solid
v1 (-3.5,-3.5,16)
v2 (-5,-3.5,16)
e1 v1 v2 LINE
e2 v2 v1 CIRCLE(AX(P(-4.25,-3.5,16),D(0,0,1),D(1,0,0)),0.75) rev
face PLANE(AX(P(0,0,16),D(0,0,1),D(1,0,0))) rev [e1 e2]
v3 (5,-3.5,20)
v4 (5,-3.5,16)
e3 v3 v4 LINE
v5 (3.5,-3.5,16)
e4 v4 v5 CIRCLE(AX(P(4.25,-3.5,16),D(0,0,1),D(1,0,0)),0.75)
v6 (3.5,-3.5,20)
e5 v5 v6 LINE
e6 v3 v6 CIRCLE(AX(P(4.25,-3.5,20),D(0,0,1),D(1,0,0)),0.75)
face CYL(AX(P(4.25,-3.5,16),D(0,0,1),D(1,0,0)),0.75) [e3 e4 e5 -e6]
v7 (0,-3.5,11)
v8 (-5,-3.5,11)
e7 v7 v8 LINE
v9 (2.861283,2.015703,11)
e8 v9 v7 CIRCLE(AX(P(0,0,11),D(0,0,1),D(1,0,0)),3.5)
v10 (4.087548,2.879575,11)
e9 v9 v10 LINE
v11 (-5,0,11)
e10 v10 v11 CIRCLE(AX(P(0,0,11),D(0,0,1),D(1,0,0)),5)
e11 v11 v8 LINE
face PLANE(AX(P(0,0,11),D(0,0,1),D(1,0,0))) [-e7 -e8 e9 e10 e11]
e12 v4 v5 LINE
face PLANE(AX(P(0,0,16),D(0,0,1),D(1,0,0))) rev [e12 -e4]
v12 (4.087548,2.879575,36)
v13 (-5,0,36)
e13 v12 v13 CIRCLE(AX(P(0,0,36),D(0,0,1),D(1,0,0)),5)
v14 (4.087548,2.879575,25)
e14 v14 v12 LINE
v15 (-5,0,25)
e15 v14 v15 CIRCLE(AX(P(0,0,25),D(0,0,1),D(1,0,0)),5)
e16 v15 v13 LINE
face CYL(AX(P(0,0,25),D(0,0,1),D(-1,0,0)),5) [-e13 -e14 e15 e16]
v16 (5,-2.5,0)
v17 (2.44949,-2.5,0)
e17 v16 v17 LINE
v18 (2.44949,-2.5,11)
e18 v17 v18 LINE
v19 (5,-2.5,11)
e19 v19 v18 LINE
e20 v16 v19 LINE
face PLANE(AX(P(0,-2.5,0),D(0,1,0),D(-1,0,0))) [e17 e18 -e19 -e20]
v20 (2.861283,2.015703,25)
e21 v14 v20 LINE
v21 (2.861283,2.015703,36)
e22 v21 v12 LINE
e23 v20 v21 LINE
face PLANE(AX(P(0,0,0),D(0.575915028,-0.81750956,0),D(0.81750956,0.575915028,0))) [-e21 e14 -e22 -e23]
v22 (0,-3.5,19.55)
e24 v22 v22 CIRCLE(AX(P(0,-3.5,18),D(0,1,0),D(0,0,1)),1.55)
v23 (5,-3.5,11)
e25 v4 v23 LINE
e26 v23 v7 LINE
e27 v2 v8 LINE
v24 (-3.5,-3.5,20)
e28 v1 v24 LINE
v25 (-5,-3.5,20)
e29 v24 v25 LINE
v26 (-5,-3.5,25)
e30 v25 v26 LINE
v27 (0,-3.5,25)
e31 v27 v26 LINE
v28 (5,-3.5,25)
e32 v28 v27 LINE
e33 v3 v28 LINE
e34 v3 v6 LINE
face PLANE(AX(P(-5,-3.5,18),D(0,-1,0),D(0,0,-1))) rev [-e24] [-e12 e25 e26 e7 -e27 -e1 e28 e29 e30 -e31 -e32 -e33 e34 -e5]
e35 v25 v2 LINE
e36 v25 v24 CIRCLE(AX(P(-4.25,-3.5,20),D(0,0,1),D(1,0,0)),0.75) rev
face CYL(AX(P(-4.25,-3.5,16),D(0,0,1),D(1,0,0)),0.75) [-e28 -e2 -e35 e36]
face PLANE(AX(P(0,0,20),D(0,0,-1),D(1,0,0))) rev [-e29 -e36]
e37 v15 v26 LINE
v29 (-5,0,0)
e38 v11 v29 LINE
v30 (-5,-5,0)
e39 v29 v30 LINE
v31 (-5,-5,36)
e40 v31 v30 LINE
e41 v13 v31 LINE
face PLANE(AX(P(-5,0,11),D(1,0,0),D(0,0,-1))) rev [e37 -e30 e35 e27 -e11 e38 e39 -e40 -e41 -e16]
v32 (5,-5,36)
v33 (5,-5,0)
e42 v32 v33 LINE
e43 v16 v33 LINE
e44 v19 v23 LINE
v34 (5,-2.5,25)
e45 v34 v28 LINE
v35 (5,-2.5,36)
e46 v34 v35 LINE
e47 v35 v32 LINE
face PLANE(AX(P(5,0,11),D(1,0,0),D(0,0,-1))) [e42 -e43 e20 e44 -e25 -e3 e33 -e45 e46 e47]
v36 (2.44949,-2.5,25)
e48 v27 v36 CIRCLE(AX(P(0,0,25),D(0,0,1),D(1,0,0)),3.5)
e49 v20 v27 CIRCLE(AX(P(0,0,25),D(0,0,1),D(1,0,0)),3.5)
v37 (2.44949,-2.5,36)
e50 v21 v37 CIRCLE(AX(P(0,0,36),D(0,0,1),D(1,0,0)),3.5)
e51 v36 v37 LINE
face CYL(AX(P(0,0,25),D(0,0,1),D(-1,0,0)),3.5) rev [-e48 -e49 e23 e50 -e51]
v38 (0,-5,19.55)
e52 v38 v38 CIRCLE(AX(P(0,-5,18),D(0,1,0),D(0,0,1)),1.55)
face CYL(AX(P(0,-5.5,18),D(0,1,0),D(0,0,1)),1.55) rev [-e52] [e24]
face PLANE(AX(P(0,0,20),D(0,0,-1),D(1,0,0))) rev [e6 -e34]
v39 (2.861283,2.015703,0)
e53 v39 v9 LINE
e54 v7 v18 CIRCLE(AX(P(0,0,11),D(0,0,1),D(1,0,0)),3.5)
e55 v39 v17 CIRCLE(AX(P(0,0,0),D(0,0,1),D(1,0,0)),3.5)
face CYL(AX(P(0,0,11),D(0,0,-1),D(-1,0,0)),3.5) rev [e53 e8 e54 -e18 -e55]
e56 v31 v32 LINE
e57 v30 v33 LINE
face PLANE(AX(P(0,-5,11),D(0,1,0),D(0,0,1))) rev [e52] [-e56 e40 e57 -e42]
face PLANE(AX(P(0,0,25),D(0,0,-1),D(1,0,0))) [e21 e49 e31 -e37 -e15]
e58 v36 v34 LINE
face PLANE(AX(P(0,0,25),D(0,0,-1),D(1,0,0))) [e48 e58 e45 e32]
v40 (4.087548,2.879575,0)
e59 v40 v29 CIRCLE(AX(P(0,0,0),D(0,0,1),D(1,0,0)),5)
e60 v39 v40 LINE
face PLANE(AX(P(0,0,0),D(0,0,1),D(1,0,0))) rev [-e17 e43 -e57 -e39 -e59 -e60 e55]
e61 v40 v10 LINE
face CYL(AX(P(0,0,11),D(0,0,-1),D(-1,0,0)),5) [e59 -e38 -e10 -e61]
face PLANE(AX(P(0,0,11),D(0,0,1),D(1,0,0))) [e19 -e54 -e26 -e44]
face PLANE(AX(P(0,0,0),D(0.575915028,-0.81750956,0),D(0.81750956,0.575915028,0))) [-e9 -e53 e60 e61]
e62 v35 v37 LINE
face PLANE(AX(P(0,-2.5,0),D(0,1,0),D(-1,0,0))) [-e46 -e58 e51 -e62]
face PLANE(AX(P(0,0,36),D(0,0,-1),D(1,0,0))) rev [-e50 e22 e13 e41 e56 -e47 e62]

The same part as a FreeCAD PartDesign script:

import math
import FreeCAD as App
import Part
import Sketcher
from FreeCAD import Vector
Q = App.Units.Quantity


def add_polygon(sketch, points):
    """Adds a closed chain of lines whose ends are joined by coincident constraints."""
    first, n = sketch.GeometryCount, len(points)
    for a, b in zip(points, points[1:] + points[:1]):
        sketch.addGeometry(Part.LineSegment(App.Vector(*a, 0), App.Vector(*b, 0)), False)
    for i in range(n):
        sketch.addConstraint(Sketcher.Constraint("Coincident", first + i, 2, first + (i + 1) % n, 1))

doc = App.newDocument("Part")
body = doc.addObject("PartDesign::Body", "Body")

sketch1 = body.newObject("Sketcher::SketchObject", "Sketch")
sketch1.AttachmentSupport = (doc.getObject("XY_Plane"), [""])
sketch1.MapMode = "FlatFace"
sketch1.addGeometry([
    Part.LineSegment(Vector(-5, -5, 0), Vector(5, -5, 0)),
    Part.LineSegment(Vector(5, -5, 0), Vector(5, 0, 0)),
    Part.ArcOfCircle(Part.Circle(Vector(0, 0, 0), Vector(0, 0, 1), 5), math.radians(0), math.radians(90)),
    Part.ArcOfCircle(Part.Circle(Vector(0, 0, 0), Vector(0, 0, 1), 5), math.radians(90), math.radians(180)),
    Part.LineSegment(Vector(-5, 0, 0), Vector(-5, -5, 0)),
    Part.Circle(Vector(0, 0, 0), Vector(0, 0, 1), 3.5),
], False)
sketch1.addConstraint([
    Sketcher.Constraint("Coincident", 0, 2, 1, 1),
    Sketcher.Constraint("Tangent", 1, 2, 2, 1),
    Sketcher.Constraint("Tangent", 2, 2, 3, 1),
    Sketcher.Constraint("Tangent", 3, 2, 4, 1),
    Sketcher.Constraint("Coincident", 4, 2, 0, 1),
    Sketcher.Constraint("Horizontal", 0),
    Sketcher.Constraint("Vertical", 1),
    Sketcher.Constraint("Vertical", 4),
    Sketcher.Constraint("Coincident", 2, 3, -1, 1),
    Sketcher.Constraint("Coincident", 5, 3, -1, 1),
    Sketcher.Constraint("Equal", 2, 3),
    Sketcher.Constraint("PointOnObject", 2, 2, -2),
    Sketcher.Constraint("Diameter", 5, Q("7 mm")),
    Sketcher.Constraint("Radius", 2, Q("5 mm")),
    Sketcher.Constraint("DistanceY", 1, 1, 1, 2, Q("5 mm")),
])
pad1 = body.newObject("PartDesign::Pad", "Pad")
pad1.Profile = sketch1
pad1.Length = 11

sketch2 = body.newObject("Sketcher::SketchObject", "Sketch001")
sketch2.AttachmentSupport = (doc.getObject("XY_Plane"), [""])
sketch2.MapMode = "FlatFace"
sketch2.AttachmentOffset = App.Placement(Vector(0, 0, 11), App.Rotation())
add_polygon(sketch2, [(-5, -3.5), (-5, -5), (5, -5), (5, -3.5)])
sketch2.addConstraint([
    Sketcher.Constraint("Vertical", 0),
    Sketcher.Constraint("Horizontal", 1),
    Sketcher.Constraint("Vertical", 2),
    Sketcher.Constraint("Horizontal", 3),
    Sketcher.Constraint("DistanceX", 1, 1, 1, 2, Q("10 mm")),
    Sketcher.Constraint("DistanceY", 0, 2, 0, 1, Q("1.5 mm")),
    Sketcher.Constraint("DistanceX", 0, 2, -1, 1, Q("5 mm")),
    Sketcher.Constraint("DistanceY", 0, 2, -1, 1, Q("5 mm")),
])
pad2 = body.newObject("PartDesign::Pad", "Pad001")
pad2.Profile = sketch2
pad2.Length = 7

sketch3 = body.newObject("Sketcher::SketchObject", "Sketch002")
sketch3.AttachmentSupport = (doc.getObject("XY_Plane"), [""])
sketch3.MapMode = "FlatFace"
sketch3.AttachmentOffset = App.Placement(Vector(0, 0, 18), App.Rotation())
sketch3.addGeometry([
    Part.LineSegment(Vector(3.5, -3.5, 0), Vector(5, -3.5, 0)),
    Part.ArcOfCircle(Part.Circle(Vector(4.2, -3.5, 0), Vector(0, 0, 1), 0.8), math.radians(0), math.radians(180)),
    Part.LineSegment(Vector(-5, -3.5, 0), Vector(-3.5, -3.5, 0)),
    Part.ArcOfCircle(Part.Circle(Vector(-4.2, -3.5, 0), Vector(0, 0, 1), 0.8), math.radians(0), math.radians(180)),
], False)
sketch3.addConstraint([
    Sketcher.Constraint("Coincident", 0, 1, 1, 2),
    Sketcher.Constraint("Coincident", 1, 1, 0, 2),
    Sketcher.Constraint("Coincident", 2, 1, 3, 2),
    Sketcher.Constraint("Coincident", 3, 1, 2, 2),
    Sketcher.Constraint("Horizontal", 0),
    Sketcher.Constraint("Horizontal", 2),
    Sketcher.Constraint("Equal", 1, 3),
    Sketcher.Constraint("Symmetric", 1, 3, 3, 3, -2),
    Sketcher.Constraint("Horizontal", 3, 3, 0, 1),
    Sketcher.Constraint("Horizontal", 1, 1, 2, 1),
    Sketcher.Constraint("Radius", 1, Q("0.75 mm")),
    Sketcher.Constraint("DistanceX", -1, 1, 1, 1, Q("5 mm")),
    Sketcher.Constraint("DistanceY", 1, 3, -1, 1, Q("3.5 mm")),
])
pad3 = body.newObject("PartDesign::Pad", "Pad002")
pad3.Profile = sketch3
pad3.Length = 2
pad3.Reversed = True
doc.recompute()

datumplane = body.newObject("PartDesign::Plane", "DatumPlane")
datumplane.AttachmentSupport = (doc.getObject("XY_Plane"), [""])
datumplane.MapMode = "FlatFace"
datumplane.AttachmentOffset = App.Placement(Vector(0, 0, 18), App.Rotation())
mirrored = body.newObject("PartDesign::Mirrored", "Mirrored")
mirrored.Originals = [pad1, pad2, pad3]
mirrored.MirrorPlane = (datumplane, [""])
body.Tip = mirrored

sketch4 = body.newObject("Sketcher::SketchObject", "Sketch003")
sketch4.AttachmentSupport = (doc.getObject("XZ_Plane"), [""])
sketch4.MapMode = "FlatFace"
sketch4.AttachmentOffset = App.Placement(Vector(0, 0, 3.5), App.Rotation())
sketch4.addGeometry(Part.Circle(Vector(0, 18, 0), Vector(0, 0, 1), 1.6), False)
sketch4.addConstraint([
    Sketcher.Constraint("PointOnObject", 0, 3, -2),
    Sketcher.Constraint("Diameter", 0, Q("3.1 mm")),
    Sketcher.Constraint("DistanceY", -1, 1, 0, 3, Q("18 mm")),
])
pocket1 = body.newObject("PartDesign::Pocket", "Pocket")
pocket1.Profile = sketch4
pocket1.Length = 2
pocket1.Reversed = True

sketch5 = body.newObject("Sketcher::SketchObject", "Sketch004")
sketch5.AttachmentSupport = (doc.getObject("XY_Plane"), [""])
sketch5.MapMode = "FlatFace"
sketch5.AttachmentOffset = App.Placement(Vector(0, 0, 36), App.Rotation())
sketch5.addGeometry([
    Part.LineSegment(Vector(2.4, -2.5, 0), Vector(5, -2.5, 0)),
    Part.LineSegment(Vector(5, -2.5, 0), Vector(5, 0, 0)),
    Part.ArcOfCircle(Part.Circle(Vector(0, 0, 0), Vector(0, 0, 1), 5), math.radians(0), math.radians(35)),
    Part.LineSegment(Vector(4.1, 2.9, 0), Vector(2.9, 2, 0)),
    Part.ArcOfCircle(Part.Circle(Vector(0, 0, 0), Vector(0, 0, 1), 3.5), math.radians(0), math.radians(35)),
    Part.ArcOfCircle(Part.Circle(Vector(0, 0, 0), Vector(0, 0, 1), 3.5), math.radians(-46), math.radians(0)),
], False)
sketch5.addConstraint([
    Sketcher.Constraint("Coincident", 0, 2, 1, 1),
    Sketcher.Constraint("Tangent", 1, 2, 2, 1),
    Sketcher.Constraint("Coincident", 2, 2, 3, 1),
    Sketcher.Constraint("Coincident", 3, 2, 4, 2),
    Sketcher.Constraint("Tangent", 4, 1, 5, 2),
    Sketcher.Constraint("Coincident", 5, 1, 0, 1),
    Sketcher.Constraint("Horizontal", 0),
    Sketcher.Constraint("Vertical", 1),
    Sketcher.Constraint("Coincident", 2, 3, -1, 1),
    Sketcher.Constraint("Coincident", 4, 3, -1, 1),
    Sketcher.Constraint("Equal", 4, 5),
    Sketcher.Constraint("PointOnObject", 4, 1, -1),
    Sketcher.Constraint("Radius", 2, Q("5 mm")),
    Sketcher.Constraint("Radius", 4, Q("3.5 mm")),
    Sketcher.Constraint("DistanceY", 1, 1, 1, 2, Q("2.5 mm")),
    Sketcher.Constraint("DistanceX", -1, 1, 2, 2, Q("4.087548 mm")),
    Sketcher.Constraint("DistanceX", -1, 1, 3, 2, Q("2.861283 mm")),
])
pocket2 = body.newObject("PartDesign::Pocket", "Pocket001")
pocket2.Profile = sketch5
pocket2.Type = "ThroughAll"

doc.recompute()
